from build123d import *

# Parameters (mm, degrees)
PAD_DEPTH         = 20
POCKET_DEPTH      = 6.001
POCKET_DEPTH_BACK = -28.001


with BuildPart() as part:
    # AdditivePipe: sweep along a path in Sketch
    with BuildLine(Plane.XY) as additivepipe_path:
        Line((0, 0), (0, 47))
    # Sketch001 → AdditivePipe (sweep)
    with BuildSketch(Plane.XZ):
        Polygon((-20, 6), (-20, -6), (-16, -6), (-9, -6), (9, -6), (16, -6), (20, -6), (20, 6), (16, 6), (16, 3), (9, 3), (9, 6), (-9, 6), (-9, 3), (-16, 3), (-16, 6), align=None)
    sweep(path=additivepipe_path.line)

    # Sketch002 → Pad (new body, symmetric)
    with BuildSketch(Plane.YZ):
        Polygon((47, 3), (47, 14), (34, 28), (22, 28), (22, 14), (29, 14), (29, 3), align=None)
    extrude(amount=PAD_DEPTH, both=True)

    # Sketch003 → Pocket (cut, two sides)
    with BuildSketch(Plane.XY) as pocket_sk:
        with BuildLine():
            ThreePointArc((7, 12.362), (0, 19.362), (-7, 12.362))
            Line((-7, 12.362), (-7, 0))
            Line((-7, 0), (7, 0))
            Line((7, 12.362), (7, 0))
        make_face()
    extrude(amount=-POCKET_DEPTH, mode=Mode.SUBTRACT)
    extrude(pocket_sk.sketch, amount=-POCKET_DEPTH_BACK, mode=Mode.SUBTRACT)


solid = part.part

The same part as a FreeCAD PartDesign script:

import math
import FreeCAD as App
import Part
import Sketcher
Q = App.Units.Quantity


def add_polygon(sketch, points):
    """Adds a closed chain of lines whose ends are joined by coincident constraints."""
    first, n = sketch.GeometryCount, len(points)
    for a, b in zip(points, points[1:] + points[:1]):
        sketch.addGeometry(Part.LineSegment(App.Vector(*a, 0), App.Vector(*b, 0)), False)
    for i in range(n):
        sketch.addConstraint(Sketcher.Constraint("Coincident", first + i, 2, first + (i + 1) % n, 1))

doc = App.newDocument("Part")
body = doc.addObject("PartDesign::Body", "Body")

# Sketch on XZ plane
sketch1 = doc.addObject("Sketcher::SketchObject", "Sketch")
body.addObject(sketch1)
sketch1.AttachmentSupport = (doc.XZ_Plane, [""])
sketch1.MapMode = "FlatFace"
add_polygon(sketch1, [(-20, 6), (-20, -6), (20, -6), (20, 6), (16, 6), (16, 3), (9, 3), (9, 6), (-9, 6), (-9, 3), (-16, 3), (-16, 6)])  # lines 0-11
sketch1.addConstraint([
    Sketcher.Constraint("Vertical", 0),
    Sketcher.Constraint("Horizontal", 1),
    Sketcher.Constraint("Vertical", 2),
    Sketcher.Constraint("Horizontal", 3),
    Sketcher.Constraint("Vertical", 4),
    Sketcher.Constraint("Horizontal", 5),
    Sketcher.Constraint("Vertical", 6),
    Sketcher.Constraint("Horizontal", 7),
    Sketcher.Constraint("Vertical", 8),
    Sketcher.Constraint("Horizontal", 9),
    Sketcher.Constraint("Vertical", 10),
    Sketcher.Constraint("Horizontal", 11),
    Sketcher.Constraint("Symmetric", 0, 2, 2, 2, -1, 1),
    Sketcher.Constraint("Symmetric", 5, 2, 8, 2, -2),
    Sketcher.Constraint("Symmetric", 3, 2, 10, 2, -2),
    Sketcher.Constraint("Horizontal", 3, 2, 6, 2),
    Sketcher.Constraint("DistanceX", 1, 1, 1, 2, Q("40 mm")),
    Sketcher.Constraint("DistanceX", 3, 2, 3, 1, Q("4 mm")),
    Sketcher.Constraint("DistanceX", 5, 2, 5, 1, Q("7 mm")),
    Sketcher.Constraint("DistanceY", 0, 2, 0, 1, Q("12 mm")),
    Sketcher.Constraint("DistanceY", 4, 2, 4, 1, Q("3 mm")),
])

# Sketch on XY plane
sketch2 = doc.addObject("Sketcher::SketchObject", "Sketch001")
body.addObject(sketch2)
sketch2.AttachmentSupport = (doc.XY_Plane, [""])
sketch2.MapMode = "FlatFace"
sketch2.addGeometry(Part.LineSegment(App.Vector(0, 0, 0), App.Vector(0, 47, 0)), False)
sketch2.addConstraint([
    Sketcher.Constraint("Vertical", 0),
    Sketcher.Constraint("Coincident", 0, 1, -1, 1),
    Sketcher.Constraint("DistanceY", 0, 1, 0, 2, Q("47 mm")),
])
doc.recompute()

additivepipe = doc.addObject("PartDesign::AdditivePipe", "AdditivePipe")
body.addObject(additivepipe)
additivepipe.Profile = sketch1
additivepipe.Spine = (sketch2, ["Edge1"])

# Sketch on YZ plane
sketch3 = doc.addObject("Sketcher::SketchObject", "Sketch002")
body.addObject(sketch3)
sketch3.AttachmentSupport = (doc.YZ_Plane, [""])
sketch3.MapMode = "FlatFace"
add_polygon(sketch3, [(47, 3), (47, 14), (34, 28), (22, 28), (22, 14), (29, 14), (29, 3)])  # lines 0-6
sketch3.addConstraint([
    Sketcher.Constraint("Vertical", 0),
    Sketcher.Constraint("Horizontal", 2),
    Sketcher.Constraint("Vertical", 3),
    Sketcher.Constraint("Horizontal", 4),
    Sketcher.Constraint("Vertical", 5),
    Sketcher.Constraint("Horizontal", 6),
    Sketcher.Constraint("Horizontal", 0, 2, 3, 2),
    Sketcher.Constraint("DistanceX", 2, 2, 2, 1, Q("12 mm")),
    Sketcher.Constraint("DistanceX", 4, 1, 4, 2, Q("7 mm")),
    Sketcher.Constraint("DistanceX", 6, 1, 6, 2, Q("18 mm")),
    Sketcher.Constraint("DistanceY", 0, 1, 0, 2, Q("11 mm")),
    Sketcher.Constraint("DistanceY", 3, 2, 3, 1, Q("14 mm")),
    Sketcher.Constraint("DistanceX", -1, 1, 0, 2, Q("47 mm")),
    Sketcher.Constraint("DistanceY", -1, 1, 0, 2, Q("14 mm")),
])
pad1 = doc.addObject("PartDesign::Pad", "Pad")
body.addObject(pad1)
pad1.Profile = sketch3
pad1.Length = 40
pad1.Midplane = True

# Sketch on XY plane
sketch4 = doc.addObject("Sketcher::SketchObject", "Sketch003")
body.addObject(sketch4)
sketch4.AttachmentSupport = (doc.XY_Plane, [""])
sketch4.MapMode = "FlatFace"
sketch4.addGeometry([
    Part.ArcOfCircle(Part.Circle(App.Vector(0, 12, 0), App.Vector(0, 0, 1), 7), math.radians(0), math.radians(180)),
    Part.LineSegment(App.Vector(-7, 12, 0), App.Vector(-7, 0, 0)),
    Part.LineSegment(App.Vector(-7, 0, 0), App.Vector(7, 0, 0)),
    Part.LineSegment(App.Vector(7, 0, 0), App.Vector(7, 12, 0)),
], False)
sketch4.addConstraint([
    Sketcher.Constraint("Tangent", 0, 2, 1, 1),
    Sketcher.Constraint("Coincident", 1, 2, 2, 1),
    Sketcher.Constraint("Coincident", 2, 2, 3, 1),
    Sketcher.Constraint("Tangent", 3, 2, 0, 1),
    Sketcher.Constraint("Vertical", 1),
    Sketcher.Constraint("Horizontal", 2),
    Sketcher.Constraint("Vertical", 3),
    Sketcher.Constraint("Symmetric", 1, 2, 2, 2, -1, 1),
    Sketcher.Constraint("Radius", 0, Q("7 mm")),
    Sketcher.Constraint("DistanceY", 1, 2, 1, 1, Q("12.362 mm")),
])
pocket1 = doc.addObject("PartDesign::Pocket", "Pocket")
body.addObject(pocket1)
pocket1.Profile = sketch4
pocket1.Type = "ThroughAll"
pocket1.Midplane = True

doc.recompute()
